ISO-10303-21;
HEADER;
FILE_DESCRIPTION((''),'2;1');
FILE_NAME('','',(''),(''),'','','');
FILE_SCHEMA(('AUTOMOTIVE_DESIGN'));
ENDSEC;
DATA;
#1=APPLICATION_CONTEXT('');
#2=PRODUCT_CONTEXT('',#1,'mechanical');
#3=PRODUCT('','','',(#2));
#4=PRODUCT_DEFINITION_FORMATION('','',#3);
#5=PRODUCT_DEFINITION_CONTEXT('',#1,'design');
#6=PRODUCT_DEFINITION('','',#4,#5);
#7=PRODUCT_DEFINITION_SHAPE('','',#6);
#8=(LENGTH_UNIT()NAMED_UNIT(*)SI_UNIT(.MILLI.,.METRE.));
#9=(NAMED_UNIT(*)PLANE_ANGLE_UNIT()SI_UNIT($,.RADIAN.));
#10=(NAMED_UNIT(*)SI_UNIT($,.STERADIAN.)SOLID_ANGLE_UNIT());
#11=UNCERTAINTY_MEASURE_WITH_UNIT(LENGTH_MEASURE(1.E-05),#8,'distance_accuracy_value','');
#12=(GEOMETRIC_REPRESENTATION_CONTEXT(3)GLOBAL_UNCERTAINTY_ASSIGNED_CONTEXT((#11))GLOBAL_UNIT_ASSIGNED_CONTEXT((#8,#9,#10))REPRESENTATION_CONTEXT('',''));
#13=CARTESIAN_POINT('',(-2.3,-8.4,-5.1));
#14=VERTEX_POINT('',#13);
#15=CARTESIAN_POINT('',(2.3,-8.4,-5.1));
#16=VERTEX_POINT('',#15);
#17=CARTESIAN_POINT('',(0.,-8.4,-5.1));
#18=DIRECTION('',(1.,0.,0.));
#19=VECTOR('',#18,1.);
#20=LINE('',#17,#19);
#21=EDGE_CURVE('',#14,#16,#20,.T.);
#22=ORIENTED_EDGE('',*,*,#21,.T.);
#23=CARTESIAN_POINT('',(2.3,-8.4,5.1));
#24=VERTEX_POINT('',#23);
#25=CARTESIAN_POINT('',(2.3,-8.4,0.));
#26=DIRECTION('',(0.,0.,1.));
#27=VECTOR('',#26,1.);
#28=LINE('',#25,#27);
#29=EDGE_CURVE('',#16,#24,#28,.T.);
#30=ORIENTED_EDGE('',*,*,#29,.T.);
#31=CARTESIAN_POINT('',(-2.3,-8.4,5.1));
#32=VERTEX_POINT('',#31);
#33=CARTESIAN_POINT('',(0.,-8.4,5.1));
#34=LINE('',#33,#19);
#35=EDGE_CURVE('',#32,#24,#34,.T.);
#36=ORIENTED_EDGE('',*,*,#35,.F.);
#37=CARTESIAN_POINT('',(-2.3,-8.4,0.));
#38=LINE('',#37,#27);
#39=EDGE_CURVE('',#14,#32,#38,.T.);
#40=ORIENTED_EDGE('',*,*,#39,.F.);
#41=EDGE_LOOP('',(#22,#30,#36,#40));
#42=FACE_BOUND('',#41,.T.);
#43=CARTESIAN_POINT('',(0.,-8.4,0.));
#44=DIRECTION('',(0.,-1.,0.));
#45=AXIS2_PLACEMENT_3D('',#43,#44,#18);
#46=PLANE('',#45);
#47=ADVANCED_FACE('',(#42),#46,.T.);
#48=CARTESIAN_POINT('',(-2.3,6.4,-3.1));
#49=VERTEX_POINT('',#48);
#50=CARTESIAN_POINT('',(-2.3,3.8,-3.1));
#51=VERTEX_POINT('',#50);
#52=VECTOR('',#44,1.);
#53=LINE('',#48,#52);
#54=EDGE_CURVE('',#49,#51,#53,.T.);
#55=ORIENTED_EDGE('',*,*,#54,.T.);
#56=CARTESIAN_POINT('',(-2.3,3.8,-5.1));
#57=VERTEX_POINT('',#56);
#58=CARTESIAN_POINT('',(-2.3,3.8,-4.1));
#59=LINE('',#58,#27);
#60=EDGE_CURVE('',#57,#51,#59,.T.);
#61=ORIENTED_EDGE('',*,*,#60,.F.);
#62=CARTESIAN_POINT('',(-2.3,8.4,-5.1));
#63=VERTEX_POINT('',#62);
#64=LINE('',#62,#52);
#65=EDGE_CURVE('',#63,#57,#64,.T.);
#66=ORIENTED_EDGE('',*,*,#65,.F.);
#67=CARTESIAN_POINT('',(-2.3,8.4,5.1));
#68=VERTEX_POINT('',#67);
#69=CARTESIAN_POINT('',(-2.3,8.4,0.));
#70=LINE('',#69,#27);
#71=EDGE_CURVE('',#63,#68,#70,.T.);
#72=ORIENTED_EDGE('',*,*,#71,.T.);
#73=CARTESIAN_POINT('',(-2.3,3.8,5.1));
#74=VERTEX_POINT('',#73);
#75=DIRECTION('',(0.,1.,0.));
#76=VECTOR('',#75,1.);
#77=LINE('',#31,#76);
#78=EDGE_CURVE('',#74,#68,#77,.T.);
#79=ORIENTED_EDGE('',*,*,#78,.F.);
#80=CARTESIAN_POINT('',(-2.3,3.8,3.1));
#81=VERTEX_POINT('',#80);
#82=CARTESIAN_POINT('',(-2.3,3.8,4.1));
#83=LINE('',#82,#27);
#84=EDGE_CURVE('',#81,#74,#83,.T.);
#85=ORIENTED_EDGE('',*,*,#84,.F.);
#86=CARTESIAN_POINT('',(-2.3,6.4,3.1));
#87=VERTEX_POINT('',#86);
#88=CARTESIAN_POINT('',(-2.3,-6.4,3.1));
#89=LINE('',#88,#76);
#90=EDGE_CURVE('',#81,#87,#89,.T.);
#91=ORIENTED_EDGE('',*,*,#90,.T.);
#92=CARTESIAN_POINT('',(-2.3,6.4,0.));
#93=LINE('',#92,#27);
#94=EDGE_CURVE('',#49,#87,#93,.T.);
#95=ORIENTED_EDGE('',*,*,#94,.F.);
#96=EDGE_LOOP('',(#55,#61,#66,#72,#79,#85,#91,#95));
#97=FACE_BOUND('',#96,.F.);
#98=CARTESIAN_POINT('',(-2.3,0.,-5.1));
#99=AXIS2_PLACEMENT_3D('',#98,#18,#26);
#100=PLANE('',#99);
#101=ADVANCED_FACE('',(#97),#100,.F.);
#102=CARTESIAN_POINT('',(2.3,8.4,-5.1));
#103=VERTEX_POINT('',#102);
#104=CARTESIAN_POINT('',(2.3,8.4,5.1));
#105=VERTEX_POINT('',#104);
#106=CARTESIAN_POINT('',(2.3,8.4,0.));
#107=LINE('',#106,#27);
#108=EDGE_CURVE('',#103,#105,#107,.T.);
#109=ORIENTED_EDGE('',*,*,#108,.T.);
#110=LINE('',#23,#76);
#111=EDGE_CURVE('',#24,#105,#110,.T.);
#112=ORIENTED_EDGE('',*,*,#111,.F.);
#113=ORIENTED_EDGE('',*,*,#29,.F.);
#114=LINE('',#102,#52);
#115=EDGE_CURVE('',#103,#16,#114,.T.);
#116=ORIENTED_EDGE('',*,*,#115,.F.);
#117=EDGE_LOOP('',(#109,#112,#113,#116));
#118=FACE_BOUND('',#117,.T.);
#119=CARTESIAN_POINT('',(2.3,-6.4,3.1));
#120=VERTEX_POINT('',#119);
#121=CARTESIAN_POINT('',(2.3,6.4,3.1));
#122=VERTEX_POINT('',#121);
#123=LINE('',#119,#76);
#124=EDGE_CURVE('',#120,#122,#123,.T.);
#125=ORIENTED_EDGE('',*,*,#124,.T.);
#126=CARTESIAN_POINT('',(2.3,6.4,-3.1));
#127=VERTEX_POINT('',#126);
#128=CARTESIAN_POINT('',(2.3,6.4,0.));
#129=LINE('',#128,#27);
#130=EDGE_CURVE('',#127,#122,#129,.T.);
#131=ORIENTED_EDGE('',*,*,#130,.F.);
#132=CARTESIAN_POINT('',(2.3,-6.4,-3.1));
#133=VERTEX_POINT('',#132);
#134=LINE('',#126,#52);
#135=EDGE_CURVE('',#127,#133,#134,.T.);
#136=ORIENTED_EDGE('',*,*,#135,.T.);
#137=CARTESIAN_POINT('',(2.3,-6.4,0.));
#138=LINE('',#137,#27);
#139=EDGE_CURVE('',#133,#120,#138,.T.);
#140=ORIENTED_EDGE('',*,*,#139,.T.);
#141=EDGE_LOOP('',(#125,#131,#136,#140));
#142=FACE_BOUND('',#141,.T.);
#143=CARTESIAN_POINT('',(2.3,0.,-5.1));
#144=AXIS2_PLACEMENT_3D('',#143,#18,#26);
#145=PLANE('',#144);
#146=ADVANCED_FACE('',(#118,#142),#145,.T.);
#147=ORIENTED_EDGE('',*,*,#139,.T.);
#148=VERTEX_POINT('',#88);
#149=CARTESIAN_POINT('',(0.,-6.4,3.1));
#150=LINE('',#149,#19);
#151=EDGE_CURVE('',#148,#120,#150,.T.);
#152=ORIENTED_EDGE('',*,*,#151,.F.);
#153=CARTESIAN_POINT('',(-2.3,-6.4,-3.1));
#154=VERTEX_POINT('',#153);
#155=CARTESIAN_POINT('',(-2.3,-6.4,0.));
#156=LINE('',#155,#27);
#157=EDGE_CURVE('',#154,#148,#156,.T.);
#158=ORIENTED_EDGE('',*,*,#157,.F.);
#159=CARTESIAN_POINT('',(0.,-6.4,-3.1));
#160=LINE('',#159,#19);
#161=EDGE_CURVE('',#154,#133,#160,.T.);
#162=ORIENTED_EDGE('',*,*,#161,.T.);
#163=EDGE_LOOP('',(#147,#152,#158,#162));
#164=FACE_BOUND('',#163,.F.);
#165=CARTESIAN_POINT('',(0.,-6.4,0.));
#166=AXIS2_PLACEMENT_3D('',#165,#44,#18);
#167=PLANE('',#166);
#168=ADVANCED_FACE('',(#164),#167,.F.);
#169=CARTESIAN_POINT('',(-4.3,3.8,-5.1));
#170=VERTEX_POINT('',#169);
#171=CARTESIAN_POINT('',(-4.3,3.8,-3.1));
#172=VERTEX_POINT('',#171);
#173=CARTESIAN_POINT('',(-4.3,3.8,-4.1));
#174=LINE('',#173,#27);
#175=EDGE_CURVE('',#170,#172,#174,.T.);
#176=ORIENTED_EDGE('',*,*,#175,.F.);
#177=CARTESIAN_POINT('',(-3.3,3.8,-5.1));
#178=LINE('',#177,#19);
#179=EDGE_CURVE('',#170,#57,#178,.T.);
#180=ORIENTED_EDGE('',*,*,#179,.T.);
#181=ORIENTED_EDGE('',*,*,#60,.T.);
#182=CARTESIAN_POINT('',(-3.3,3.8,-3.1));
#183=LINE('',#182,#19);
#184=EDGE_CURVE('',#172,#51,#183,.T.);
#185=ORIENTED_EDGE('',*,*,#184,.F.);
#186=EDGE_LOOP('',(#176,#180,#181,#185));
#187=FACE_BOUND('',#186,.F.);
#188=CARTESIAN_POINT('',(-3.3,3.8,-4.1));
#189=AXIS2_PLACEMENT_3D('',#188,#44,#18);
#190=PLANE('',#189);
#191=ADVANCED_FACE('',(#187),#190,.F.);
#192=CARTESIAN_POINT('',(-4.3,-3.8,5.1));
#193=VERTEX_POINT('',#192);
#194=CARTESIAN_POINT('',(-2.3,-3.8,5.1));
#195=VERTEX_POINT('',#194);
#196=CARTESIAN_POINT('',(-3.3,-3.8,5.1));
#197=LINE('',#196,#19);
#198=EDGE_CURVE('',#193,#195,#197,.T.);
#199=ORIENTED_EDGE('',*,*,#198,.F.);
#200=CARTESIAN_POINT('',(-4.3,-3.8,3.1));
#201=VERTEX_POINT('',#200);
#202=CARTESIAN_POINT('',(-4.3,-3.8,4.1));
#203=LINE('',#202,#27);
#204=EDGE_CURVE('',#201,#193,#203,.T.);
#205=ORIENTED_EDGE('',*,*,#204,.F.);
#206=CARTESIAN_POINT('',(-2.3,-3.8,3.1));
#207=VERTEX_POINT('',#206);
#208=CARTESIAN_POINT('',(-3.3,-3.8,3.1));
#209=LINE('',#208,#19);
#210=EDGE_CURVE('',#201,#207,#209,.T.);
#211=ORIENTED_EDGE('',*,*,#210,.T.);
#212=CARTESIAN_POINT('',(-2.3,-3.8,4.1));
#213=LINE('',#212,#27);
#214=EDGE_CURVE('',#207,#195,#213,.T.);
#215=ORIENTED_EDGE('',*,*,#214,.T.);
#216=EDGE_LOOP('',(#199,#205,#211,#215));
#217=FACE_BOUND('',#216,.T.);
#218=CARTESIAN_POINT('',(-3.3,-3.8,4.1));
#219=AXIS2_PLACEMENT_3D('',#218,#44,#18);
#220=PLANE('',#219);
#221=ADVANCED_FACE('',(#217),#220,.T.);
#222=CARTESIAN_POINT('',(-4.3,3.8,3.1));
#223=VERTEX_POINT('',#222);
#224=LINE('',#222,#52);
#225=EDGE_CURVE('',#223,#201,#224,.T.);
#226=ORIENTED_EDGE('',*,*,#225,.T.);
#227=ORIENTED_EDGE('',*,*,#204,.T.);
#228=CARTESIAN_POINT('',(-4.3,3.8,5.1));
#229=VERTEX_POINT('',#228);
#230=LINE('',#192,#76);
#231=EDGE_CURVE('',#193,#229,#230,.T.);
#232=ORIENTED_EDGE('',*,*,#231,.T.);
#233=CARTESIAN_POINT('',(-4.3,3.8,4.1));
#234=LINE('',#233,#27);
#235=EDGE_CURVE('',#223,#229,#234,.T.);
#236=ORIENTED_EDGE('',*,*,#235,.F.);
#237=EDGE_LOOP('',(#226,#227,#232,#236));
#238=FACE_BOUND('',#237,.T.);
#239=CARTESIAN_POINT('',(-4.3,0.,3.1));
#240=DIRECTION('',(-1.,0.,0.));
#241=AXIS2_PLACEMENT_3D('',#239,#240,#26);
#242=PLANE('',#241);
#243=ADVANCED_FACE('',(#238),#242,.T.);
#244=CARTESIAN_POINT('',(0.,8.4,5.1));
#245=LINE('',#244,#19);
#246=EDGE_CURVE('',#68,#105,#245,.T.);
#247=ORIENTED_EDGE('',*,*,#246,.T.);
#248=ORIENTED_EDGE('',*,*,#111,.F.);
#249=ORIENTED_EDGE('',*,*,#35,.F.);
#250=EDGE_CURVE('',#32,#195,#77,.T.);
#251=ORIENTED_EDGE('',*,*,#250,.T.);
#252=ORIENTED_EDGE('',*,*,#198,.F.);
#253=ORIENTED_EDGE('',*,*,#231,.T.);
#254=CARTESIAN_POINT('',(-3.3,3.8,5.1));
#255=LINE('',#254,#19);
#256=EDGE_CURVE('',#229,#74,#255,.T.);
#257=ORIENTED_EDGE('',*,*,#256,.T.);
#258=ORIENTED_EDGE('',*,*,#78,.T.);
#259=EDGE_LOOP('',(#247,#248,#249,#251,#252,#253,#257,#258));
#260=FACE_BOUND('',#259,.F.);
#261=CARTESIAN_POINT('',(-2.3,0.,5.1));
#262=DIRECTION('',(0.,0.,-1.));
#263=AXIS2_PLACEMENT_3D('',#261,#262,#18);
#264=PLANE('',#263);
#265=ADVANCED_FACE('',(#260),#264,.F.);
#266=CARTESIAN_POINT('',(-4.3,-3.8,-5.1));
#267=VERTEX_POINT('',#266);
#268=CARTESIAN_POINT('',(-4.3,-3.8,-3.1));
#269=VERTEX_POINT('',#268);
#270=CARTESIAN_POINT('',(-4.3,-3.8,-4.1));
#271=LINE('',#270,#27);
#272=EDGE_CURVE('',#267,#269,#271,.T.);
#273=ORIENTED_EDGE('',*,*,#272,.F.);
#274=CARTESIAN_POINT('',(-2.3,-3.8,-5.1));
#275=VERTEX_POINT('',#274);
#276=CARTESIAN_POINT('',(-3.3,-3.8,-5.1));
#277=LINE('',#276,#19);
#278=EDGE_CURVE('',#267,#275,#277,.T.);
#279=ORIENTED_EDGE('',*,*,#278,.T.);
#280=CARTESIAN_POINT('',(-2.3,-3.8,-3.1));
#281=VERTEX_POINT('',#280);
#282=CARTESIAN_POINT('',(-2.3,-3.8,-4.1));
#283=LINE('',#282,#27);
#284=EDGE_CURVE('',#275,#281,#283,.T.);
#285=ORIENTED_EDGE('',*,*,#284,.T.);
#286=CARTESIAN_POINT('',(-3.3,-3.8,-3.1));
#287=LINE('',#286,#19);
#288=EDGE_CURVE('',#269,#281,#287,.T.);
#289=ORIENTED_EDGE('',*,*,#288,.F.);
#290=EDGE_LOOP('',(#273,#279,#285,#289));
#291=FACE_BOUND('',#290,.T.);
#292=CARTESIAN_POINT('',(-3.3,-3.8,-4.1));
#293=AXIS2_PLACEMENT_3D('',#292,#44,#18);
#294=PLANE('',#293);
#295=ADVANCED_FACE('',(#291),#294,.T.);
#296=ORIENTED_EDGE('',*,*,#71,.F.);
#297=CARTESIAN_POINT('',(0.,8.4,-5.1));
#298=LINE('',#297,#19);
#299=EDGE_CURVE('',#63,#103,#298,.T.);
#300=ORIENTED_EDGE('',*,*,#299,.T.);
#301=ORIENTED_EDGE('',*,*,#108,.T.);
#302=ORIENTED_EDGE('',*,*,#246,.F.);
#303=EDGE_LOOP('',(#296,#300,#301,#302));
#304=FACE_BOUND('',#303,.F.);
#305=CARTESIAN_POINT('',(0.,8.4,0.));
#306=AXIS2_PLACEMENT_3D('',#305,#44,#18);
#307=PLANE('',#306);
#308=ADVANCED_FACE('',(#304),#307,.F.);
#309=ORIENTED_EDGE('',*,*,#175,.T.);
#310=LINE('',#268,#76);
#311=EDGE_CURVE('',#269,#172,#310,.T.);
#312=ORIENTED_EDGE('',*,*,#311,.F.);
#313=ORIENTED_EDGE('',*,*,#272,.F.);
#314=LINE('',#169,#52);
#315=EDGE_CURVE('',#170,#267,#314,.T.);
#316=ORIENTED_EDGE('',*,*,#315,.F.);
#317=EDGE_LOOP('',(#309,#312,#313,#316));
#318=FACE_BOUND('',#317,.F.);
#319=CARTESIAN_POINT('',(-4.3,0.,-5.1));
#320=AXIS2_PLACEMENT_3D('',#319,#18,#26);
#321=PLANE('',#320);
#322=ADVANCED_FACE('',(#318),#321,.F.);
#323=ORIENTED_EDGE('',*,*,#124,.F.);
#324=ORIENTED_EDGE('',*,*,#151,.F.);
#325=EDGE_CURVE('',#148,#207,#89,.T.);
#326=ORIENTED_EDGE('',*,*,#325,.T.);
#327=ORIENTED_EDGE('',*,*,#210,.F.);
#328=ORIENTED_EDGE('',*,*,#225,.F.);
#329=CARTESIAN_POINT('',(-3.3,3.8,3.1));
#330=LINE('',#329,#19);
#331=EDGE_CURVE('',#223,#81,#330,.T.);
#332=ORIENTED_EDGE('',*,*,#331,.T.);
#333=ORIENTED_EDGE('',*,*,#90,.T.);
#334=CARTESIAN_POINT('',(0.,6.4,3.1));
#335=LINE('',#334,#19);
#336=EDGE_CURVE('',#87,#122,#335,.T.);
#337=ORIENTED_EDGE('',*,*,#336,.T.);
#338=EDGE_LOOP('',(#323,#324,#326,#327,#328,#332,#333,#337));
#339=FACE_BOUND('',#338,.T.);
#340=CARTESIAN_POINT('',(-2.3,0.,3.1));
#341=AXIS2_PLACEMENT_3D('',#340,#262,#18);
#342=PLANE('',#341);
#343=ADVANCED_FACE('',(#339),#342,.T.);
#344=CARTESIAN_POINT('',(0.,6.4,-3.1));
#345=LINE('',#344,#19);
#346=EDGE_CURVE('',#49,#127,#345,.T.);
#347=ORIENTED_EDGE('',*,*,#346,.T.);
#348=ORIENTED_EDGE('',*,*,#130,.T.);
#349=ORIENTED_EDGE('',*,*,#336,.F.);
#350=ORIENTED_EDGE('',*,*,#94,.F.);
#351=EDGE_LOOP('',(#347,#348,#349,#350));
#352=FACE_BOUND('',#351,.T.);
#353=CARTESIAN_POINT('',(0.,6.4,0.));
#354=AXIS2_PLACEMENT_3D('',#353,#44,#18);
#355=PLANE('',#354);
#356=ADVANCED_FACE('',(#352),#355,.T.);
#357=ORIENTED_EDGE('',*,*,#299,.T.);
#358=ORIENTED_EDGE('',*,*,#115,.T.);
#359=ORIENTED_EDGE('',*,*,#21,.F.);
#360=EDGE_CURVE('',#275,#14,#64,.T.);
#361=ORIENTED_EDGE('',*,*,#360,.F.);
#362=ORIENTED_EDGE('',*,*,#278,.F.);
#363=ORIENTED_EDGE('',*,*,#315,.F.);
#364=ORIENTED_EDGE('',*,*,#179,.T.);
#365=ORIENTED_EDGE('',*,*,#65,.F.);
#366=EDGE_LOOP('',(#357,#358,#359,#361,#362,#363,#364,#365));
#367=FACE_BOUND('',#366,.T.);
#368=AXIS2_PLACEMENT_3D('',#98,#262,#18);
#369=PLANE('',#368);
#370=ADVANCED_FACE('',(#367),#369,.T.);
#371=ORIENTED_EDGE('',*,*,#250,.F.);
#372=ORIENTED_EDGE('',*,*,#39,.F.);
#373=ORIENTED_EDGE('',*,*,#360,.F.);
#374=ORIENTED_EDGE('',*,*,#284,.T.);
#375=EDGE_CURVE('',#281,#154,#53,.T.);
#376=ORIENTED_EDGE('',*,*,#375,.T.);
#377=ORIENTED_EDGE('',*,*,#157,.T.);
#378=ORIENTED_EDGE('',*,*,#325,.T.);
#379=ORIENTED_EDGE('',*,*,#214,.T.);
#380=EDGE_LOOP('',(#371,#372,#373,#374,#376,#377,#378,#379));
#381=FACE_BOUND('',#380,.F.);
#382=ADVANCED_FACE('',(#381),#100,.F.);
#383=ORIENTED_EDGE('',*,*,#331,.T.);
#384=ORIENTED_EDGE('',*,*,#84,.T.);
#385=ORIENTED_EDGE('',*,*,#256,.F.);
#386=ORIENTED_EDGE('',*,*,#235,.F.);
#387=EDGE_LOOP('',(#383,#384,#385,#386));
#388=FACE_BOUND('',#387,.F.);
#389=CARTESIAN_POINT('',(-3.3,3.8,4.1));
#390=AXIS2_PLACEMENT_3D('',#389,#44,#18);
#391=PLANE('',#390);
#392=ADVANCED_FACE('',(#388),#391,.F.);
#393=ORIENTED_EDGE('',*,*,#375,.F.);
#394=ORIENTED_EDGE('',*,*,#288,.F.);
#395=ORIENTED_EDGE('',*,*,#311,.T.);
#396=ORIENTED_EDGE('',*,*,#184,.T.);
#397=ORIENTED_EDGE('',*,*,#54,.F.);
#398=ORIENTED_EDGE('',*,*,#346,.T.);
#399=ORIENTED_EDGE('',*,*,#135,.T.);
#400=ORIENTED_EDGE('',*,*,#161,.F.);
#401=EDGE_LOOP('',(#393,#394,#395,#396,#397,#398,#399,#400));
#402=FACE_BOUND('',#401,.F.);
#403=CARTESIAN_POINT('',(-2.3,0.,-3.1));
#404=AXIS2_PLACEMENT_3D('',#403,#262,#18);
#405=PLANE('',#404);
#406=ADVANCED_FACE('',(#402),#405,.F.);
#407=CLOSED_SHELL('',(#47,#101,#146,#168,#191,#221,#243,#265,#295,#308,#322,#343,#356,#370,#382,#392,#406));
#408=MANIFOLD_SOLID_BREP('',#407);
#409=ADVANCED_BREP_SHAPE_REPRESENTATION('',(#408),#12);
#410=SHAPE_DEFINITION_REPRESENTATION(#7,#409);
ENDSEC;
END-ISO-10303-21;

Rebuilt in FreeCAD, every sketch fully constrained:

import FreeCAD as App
import Part
import Sketcher


def add_polygon(sketch, points):
    """Adds a closed chain of lines whose ends are joined by coincident constraints."""
    first, n = sketch.GeometryCount, len(points)
    for a, b in zip(points, points[1:] + points[:1]):
        sketch.addGeometry(Part.LineSegment(App.Vector(*a, 0), App.Vector(*b, 0)), False)
    for i in range(n):
        sketch.addConstraint(Sketcher.Constraint("Coincident", first + i, 2, first + (i + 1) % n, 1))

doc = App.newDocument("Part")
body = doc.addObject("PartDesign::Body", "Body")
body.AllowCompound = True

# Sketch on XZ plane
sketch1 = body.newObject("Sketcher::SketchObject", "Sketch")
sketch1.AttachmentSupport = (doc.getObject("XZ_Plane"), [""])
sketch1.MapMode = "FlatFace"
add_polygon(sketch1, [(-4.3, 5.1), (-4.3, 3.1), (-2.3, 3.1), (-2.3, 5.1)])  # lines 0-3
add_polygon(sketch1, [(-4.3, -3.1), (-4.3, -5.1), (-2.3, -5.1), (-2.3, -3.1)])  # lines 4-7
sketch1.addConstraint(Sketcher.Constraint("Vertical", 0))
sketch1.addConstraint(Sketcher.Constraint("Horizontal", 1))
sketch1.addConstraint(Sketcher.Constraint("Vertical", 2))
sketch1.addConstraint(Sketcher.Constraint("Horizontal", 3))
sketch1.addConstraint(Sketcher.Constraint("Vertical", 4))
sketch1.addConstraint(Sketcher.Constraint("Horizontal", 5))
sketch1.addConstraint(Sketcher.Constraint("Vertical", 6))
sketch1.addConstraint(Sketcher.Constraint("Horizontal", 7))
sketch1.addConstraint(Sketcher.Constraint("Symmetric", 3, 2, 4, 2, -1))
sketch1.addConstraint(Sketcher.Constraint("Symmetric", 1, 2, 6, 2, -1))
sketch1.addConstraint(Sketcher.Constraint("Equal", 7, 0))
sketch1.addConstraint(Sketcher.Constraint("DistanceX", 1, 1, 1, 2, 2.0))
sketch1.addConstraint(Sketcher.Constraint("DistanceX", 0, 2, -1, 1, 4.3))
sketch1.addConstraint(Sketcher.Constraint("DistanceY", -1, 1, 0, 2, 3.1))
pad1 = body.newObject("PartDesign::Pad", "Pad")
pad1.Profile = sketch1
pad1.Length = 7.6
pad1.Midplane = True
body2 = doc.addObject("PartDesign::Body", "Body001")

# Sketch on XZ plane
sketch2 = body2.newObject("Sketcher::SketchObject", "Sketch001")
sketch2.AttachmentSupport = (doc.getObject("XZ_Plane001"), [""])
sketch2.MapMode = "FlatFace"
add_polygon(sketch2, [(-2.3, 3.1), (-2.3, -3.1), (2.3, -3.1), (2.3, 3.1)])  # lines 0-3
sketch2.addConstraint(Sketcher.Constraint("Vertical", 0))
sketch2.addConstraint(Sketcher.Constraint("Horizontal", 1))
sketch2.addConstraint(Sketcher.Constraint("Vertical", 2))
sketch2.addConstraint(Sketcher.Constraint("Horizontal", 3))
sketch2.addConstraint(Sketcher.Constraint("Symmetric", 0, 2, 2, 2, -1, 1))
sketch2.addConstraint(Sketcher.Constraint("DistanceX", 1, 1, 1, 2, 4.6))
sketch2.addConstraint(Sketcher.Constraint("DistanceY", 0, 2, 0, 1, 6.2))
pad2 = body2.newObject("PartDesign::Pad", "Pad001")
pad2.Profile = sketch2
pad2.Length = 12.8
pad2.Midplane = True
body3 = doc.addObject("PartDesign::Body", "Body002")

# Sketch on XZ plane
sketch3 = body3.newObject("Sketcher::SketchObject", "Sketch002")
sketch3.AttachmentSupport = (doc.getObject("XZ_Plane002"), [""])
sketch3.MapMode = "FlatFace"
add_polygon(sketch3, [(-2.3, 5.1), (-2.3, -5.1), (2.3, -5.1), (2.3, 5.1)])  # lines 0-3
sketch3.addConstraint(Sketcher.Constraint("Vertical", 0))
sketch3.addConstraint(Sketcher.Constraint("Horizontal", 1))
sketch3.addConstraint(Sketcher.Constraint("Vertical", 2))
sketch3.addConstraint(Sketcher.Constraint("Horizontal", 3))
sketch3.addConstraint(Sketcher.Constraint("Symmetric", 0, 2, 2, 2, -1, 1))
sketch3.addConstraint(Sketcher.Constraint("DistanceX", 1, 1, 1, 2, 4.6))
sketch3.addConstraint(Sketcher.Constraint("DistanceY", 0, 2, 0, 1, 10.2))
pad3 = body3.newObject("PartDesign::Pad", "Pad002")
pad3.Profile = sketch3
pad3.Length = 16.8
pad3.Midplane = True
doc.recompute()

boolean = body3.newObject("PartDesign::Boolean", "Boolean")
boolean.Type = "Cut"
boolean.addObjects([body2])
doc.recompute()

boolean2 = body3.newObject("PartDesign::Boolean", "Boolean001")
boolean2.Type = "Fuse"
boolean2.addObjects([body])

doc.recompute()
